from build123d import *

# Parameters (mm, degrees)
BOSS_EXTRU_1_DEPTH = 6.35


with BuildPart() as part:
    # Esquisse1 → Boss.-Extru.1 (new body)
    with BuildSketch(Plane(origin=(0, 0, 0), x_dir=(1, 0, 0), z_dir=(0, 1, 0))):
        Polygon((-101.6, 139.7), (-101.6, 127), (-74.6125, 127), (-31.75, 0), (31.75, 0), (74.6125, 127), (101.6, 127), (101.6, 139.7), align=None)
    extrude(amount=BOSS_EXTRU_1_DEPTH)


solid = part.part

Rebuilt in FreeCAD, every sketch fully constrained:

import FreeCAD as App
import Part
import Sketcher

V = App.Vector
Q = App.Units.Quantity

doc = App.newDocument("Part")
body = doc.addObject("PartDesign::Body", "Body")

# Sketch on XZ plane
sketch1 = body.newObject("Sketcher::SketchObject", "Sketch")
sketch1.AttachmentSupport = (doc.getObject("XZ_Plane"), [""])
sketch1.MapMode = "FlatFace"
sketch1.addGeometry([
    Part.LineSegment(V(-102, -140, 0), V(-102, -127, 0)),  # 0
    Part.LineSegment(V(-102, -127, 0), V(-75, -127, 0)),  # 1
    Part.LineSegment(V(-75, -127, 0), V(-32, 0, 0)),  # 2
    Part.LineSegment(V(-32, 0, 0), V(32, 0, 0)),  # 3
    Part.LineSegment(V(32, 0, 0), V(75, -127, 0)),  # 4
    Part.LineSegment(V(75, -127, 0), V(102, -127, 0)),  # 5
    Part.LineSegment(V(102, -127, 0), V(102, -140, 0)),  # 6
    Part.LineSegment(V(102, -140, 0), V(-102, -140, 0)),  # 7
], False)
sketch1.addConstraint([
    Sketcher.Constraint("Coincident", 0, 2, 1, 1),
    Sketcher.Constraint("Coincident", 1, 2, 2, 1),
    Sketcher.Constraint("Coincident", 2, 2, 3, 1),
    Sketcher.Constraint("Coincident", 3, 2, 4, 1),
    Sketcher.Constraint("Coincident", 4, 2, 5, 1),
    Sketcher.Constraint("Coincident", 5, 2, 6, 1),
    Sketcher.Constraint("Coincident", 6, 2, 7, 1),
    Sketcher.Constraint("Coincident", 7, 2, 0, 1),
    Sketcher.Constraint("Vertical", 0),
    Sketcher.Constraint("Horizontal", 1),
    Sketcher.Constraint("Horizontal", 3),
    Sketcher.Constraint("Horizontal", 5),
    Sketcher.Constraint("Vertical", 6),
    Sketcher.Constraint("Horizontal", 7),
    Sketcher.Constraint("Symmetric", 2, 2, 3, 2, -1, 1),
    Sketcher.Constraint("Symmetric", 1, 2, 4, 2, -2),
    Sketcher.Constraint("Equal", 1, 5),
    Sketcher.Constraint("DistanceX", 7, 2, 7, 1, Q("8 in")),
    Sketcher.Constraint("DistanceX", 3, 1, 3, 2, Q("2.5 in")),
    Sketcher.Constraint("DistanceY", 0, 1, 0, 2, Q("0.5 in")),
    Sketcher.Constraint("DistanceY", 0, 2, -1, 1, Q("5 in")),
    Sketcher.Constraint("DistanceX", 1, 1, 1, 2, Q("1.0625 in")),
])
pad1 = body.newObject("PartDesign::Pad", "Pad")
pad1.Profile = sketch1
pad1.Length = Q("0.25 in")
pad1.Reversed = True

doc.recompute()
